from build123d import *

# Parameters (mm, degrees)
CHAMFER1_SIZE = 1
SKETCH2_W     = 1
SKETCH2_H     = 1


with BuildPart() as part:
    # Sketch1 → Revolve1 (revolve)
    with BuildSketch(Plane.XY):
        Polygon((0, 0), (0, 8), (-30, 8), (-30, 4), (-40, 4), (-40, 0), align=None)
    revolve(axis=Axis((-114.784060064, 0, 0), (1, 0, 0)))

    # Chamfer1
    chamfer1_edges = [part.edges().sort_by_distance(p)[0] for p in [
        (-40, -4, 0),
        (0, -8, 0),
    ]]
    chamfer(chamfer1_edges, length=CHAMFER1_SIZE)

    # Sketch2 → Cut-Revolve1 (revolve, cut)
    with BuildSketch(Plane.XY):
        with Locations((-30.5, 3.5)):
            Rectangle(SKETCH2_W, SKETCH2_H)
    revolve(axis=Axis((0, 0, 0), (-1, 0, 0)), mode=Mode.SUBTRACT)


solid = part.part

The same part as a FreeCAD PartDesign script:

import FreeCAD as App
import Part
import Sketcher


def edges_at(feature, points):
    """Names of the edges that pass closest to the given points."""
    edges = feature.Shape.Edges
    near = lambda p: min(range(len(edges)), key=lambda i: edges[i].distToShape(Part.Vertex(*p))[0])
    return sorted({f"Edge{near(p) + 1}" for p in points})

doc = App.newDocument("Part")
body = doc.addObject("PartDesign::Body", "Body")

sketch1 = doc.addObject("Sketcher::SketchObject", "Sketch")
body.addObject(sketch1)
sketch1.AttachmentSupport = (doc.XY_Plane, [""])
sketch1.MapMode = "FlatFace"
sketch1.addGeometry([
    Part.LineSegment(App.Vector(0, 0, 0), App.Vector(0, 8, 0)),
    Part.LineSegment(App.Vector(0, 8, 0), App.Vector(-30, 8, 0)),
    Part.LineSegment(App.Vector(-30, 8, 0), App.Vector(-30, 4, 0)),
    Part.LineSegment(App.Vector(-30, 4, 0), App.Vector(-40, 4, 0)),
    Part.LineSegment(App.Vector(-40, 4, 0), App.Vector(-40, 0, 0)),
    Part.LineSegment(App.Vector(-40, 0, 0), App.Vector(0, 0, 0)),
], False)
sketch1.addConstraint([
    Sketcher.Constraint("Coincident", 0, 2, 1, 1),
    Sketcher.Constraint("Coincident", 1, 2, 2, 1),
    Sketcher.Constraint("Coincident", 2, 2, 3, 1),
    Sketcher.Constraint("Coincident", 3, 2, 4, 1),
    Sketcher.Constraint("Coincident", 4, 2, 5, 1),
    Sketcher.Constraint("Coincident", 5, 2, 0, 1),
    Sketcher.Constraint("Vertical", 0),
    Sketcher.Constraint("Horizontal", 1),
    Sketcher.Constraint("Vertical", 2),
    Sketcher.Constraint("Horizontal", 3),
    Sketcher.Constraint("Vertical", 4),
    Sketcher.Constraint("Horizontal", 5),
    Sketcher.Constraint("Coincident", 5, 2, -1, 1),
    Sketcher.Constraint("Equal", 2, 4),
    Sketcher.Constraint("DistanceX", 1, 2, 1, 1, 30.0),
    Sketcher.Constraint("DistanceX", 3, 2, 3, 1, 10.0),
    Sketcher.Constraint("DistanceY", 0, 1, 0, 2, 8.0),
])
revolution = doc.addObject("PartDesign::Revolution", "Revolution")
body.addObject(revolution)
revolution.Profile = sketch1
revolution.ReferenceAxis = (sketch1, ["H_Axis"])
revolution.Angle = 360
doc.recompute()

chamfer = doc.addObject("PartDesign::Chamfer", "Chamfer")
body.addObject(chamfer)
chamfer.Base = (revolution, edges_at(revolution, [(-40, -4, 0), (0, -8, 0)]))
chamfer.Size = 1

sketch2 = doc.addObject("Sketcher::SketchObject", "Sketch001")
body.addObject(sketch2)
sketch2.AttachmentSupport = (doc.XY_Plane, [""])
sketch2.MapMode = "FlatFace"
sketch2.addGeometry([
    Part.LineSegment(App.Vector(-31, 4, 0), App.Vector(-31, 3, 0)),
    Part.LineSegment(App.Vector(-31, 3, 0), App.Vector(-30, 3, 0)),
    Part.LineSegment(App.Vector(-30, 3, 0), App.Vector(-30, 4, 0)),
    Part.LineSegment(App.Vector(-30, 4, 0), App.Vector(-31, 4, 0)),
], False)
sketch2.addConstraint([
    Sketcher.Constraint("Coincident", 0, 2, 1, 1),
    Sketcher.Constraint("Coincident", 1, 2, 2, 1),
    Sketcher.Constraint("Coincident", 2, 2, 3, 1),
    Sketcher.Constraint("Coincident", 3, 2, 0, 1),
    Sketcher.Constraint("Vertical", 0),
    Sketcher.Constraint("Horizontal", 1),
    Sketcher.Constraint("Vertical", 2),
    Sketcher.Constraint("Horizontal", 3),
    Sketcher.Constraint("Equal", 3, 0),
    Sketcher.Constraint("DistanceX", 1, 1, 1, 2, 1.0),
    Sketcher.Constraint("DistanceX", 0, 2, -1, 1, 31.0),
    Sketcher.Constraint("DistanceY", -1, 1, 0, 2, 3.0),
])
groove = doc.addObject("PartDesign::Groove", "Groove")
body.addObject(groove)
groove.Profile = sketch2
groove.ReferenceAxis = (sketch2, ["H_Axis"])
groove.Angle = 360

doc.recompute()
